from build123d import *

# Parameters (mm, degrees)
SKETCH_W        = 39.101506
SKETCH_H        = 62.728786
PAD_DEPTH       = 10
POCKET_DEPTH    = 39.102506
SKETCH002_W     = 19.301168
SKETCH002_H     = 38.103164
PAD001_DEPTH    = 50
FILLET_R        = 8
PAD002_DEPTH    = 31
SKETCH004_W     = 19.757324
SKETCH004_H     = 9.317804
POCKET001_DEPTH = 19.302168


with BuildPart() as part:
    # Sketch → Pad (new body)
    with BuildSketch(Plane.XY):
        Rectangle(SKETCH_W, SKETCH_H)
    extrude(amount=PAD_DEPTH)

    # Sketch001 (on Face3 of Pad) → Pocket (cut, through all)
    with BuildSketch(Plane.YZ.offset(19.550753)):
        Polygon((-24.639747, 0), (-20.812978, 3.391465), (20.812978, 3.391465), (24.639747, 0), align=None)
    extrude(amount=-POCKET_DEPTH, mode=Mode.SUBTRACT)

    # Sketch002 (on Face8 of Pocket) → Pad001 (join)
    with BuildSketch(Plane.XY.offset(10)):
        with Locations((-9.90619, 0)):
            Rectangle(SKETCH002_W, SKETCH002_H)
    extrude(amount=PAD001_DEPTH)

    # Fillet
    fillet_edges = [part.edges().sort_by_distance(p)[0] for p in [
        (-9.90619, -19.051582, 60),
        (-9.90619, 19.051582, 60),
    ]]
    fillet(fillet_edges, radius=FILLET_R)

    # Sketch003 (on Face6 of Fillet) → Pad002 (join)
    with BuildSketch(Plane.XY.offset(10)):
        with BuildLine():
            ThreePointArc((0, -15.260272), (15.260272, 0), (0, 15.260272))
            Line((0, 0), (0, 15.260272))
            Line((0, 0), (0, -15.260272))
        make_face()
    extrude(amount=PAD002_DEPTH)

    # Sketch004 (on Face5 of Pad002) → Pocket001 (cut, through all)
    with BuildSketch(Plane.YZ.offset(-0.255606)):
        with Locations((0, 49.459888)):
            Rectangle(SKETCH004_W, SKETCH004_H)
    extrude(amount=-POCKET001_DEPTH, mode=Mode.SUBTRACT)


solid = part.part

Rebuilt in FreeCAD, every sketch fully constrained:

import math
import FreeCAD as App
import Part
import Sketcher
from FreeCAD import Vector
Q = App.Units.Quantity


def edges_at(feature, points):
    """Names of the edges that pass closest to the given points."""
    edges = feature.Shape.Edges
    near = lambda p: min(range(len(edges)), key=lambda i: edges[i].distToShape(Part.Vertex(*p))[0])
    return sorted({f"Edge{near(p) + 1}" for p in points})

doc = App.newDocument("Part")
body = doc.addObject("PartDesign::Body", "Body")

sketch1 = body.newObject("Sketcher::SketchObject", "Sketch")
sketch1.AttachmentSupport = (doc.getObject("XY_Plane"), [""])
sketch1.MapMode = "FlatFace"
sketch1.addGeometry(Part.LineSegment(Vector(-20, 31, 0), Vector(-20, -31, 0)), False)
sketch1.addGeometry(Part.LineSegment(Vector(-20, -31, 0), Vector(20, -31, 0)), False)
sketch1.addGeometry(Part.LineSegment(Vector(20, -31, 0), Vector(20, 31, 0)), False)
sketch1.addGeometry(Part.LineSegment(Vector(20, 31, 0), Vector(-20, 31, 0)), False)
sketch1.addConstraint(Sketcher.Constraint("Coincident", 0, 2, 1, 1))
sketch1.addConstraint(Sketcher.Constraint("Coincident", 1, 2, 2, 1))
sketch1.addConstraint(Sketcher.Constraint("Coincident", 2, 2, 3, 1))
sketch1.addConstraint(Sketcher.Constraint("Coincident", 3, 2, 0, 1))
sketch1.addConstraint(Sketcher.Constraint("Vertical", 0))
sketch1.addConstraint(Sketcher.Constraint("Horizontal", 1))
sketch1.addConstraint(Sketcher.Constraint("Vertical", 2))
sketch1.addConstraint(Sketcher.Constraint("Horizontal", 3))
sketch1.addConstraint(Sketcher.Constraint("Symmetric", 0, 2, 2, 2, -1, 1))
sketch1.addConstraint(Sketcher.Constraint("DistanceX", 1, 1, 1, 2, Q("39.101506 mm")))
sketch1.addConstraint(Sketcher.Constraint("DistanceY", 0, 2, 0, 1, Q("62.728786 mm")))
pad1 = body.newObject("PartDesign::Pad", "Pad")
pad1.Profile = sketch1
pad1.Length = 10

sketch2 = body.newObject("Sketcher::SketchObject", "Sketch001")
sketch2.AttachmentSupport = (doc.getObject("YZ_Plane"), [""])
sketch2.MapMode = "FlatFace"
sketch2.AttachmentOffset = App.Placement(Vector(0, 0, 19.550753), App.Rotation())
sketch2.addGeometry(Part.LineSegment(Vector(-21, 3, 0), Vector(-25, 0, 0)), False)
sketch2.addGeometry(Part.LineSegment(Vector(-25, 0, 0), Vector(25, 0, 0)), False)
sketch2.addGeometry(Part.LineSegment(Vector(25, 0, 0), Vector(21, 3, 0)), False)
sketch2.addGeometry(Part.LineSegment(Vector(21, 3, 0), Vector(-21, 3, 0)), False)
sketch2.addConstraint(Sketcher.Constraint("Coincident", 0, 2, 1, 1))
sketch2.addConstraint(Sketcher.Constraint("Coincident", 1, 2, 2, 1))
sketch2.addConstraint(Sketcher.Constraint("Coincident", 2, 2, 3, 1))
sketch2.addConstraint(Sketcher.Constraint("Coincident", 3, 2, 0, 1))
sketch2.addConstraint(Sketcher.Constraint("Horizontal", 1))
sketch2.addConstraint(Sketcher.Constraint("Horizontal", 3))
sketch2.addConstraint(Sketcher.Constraint("Symmetric", 0, 2, 1, 2, -1, 1))
sketch2.addConstraint(Sketcher.Constraint("Equal", 0, 2))
sketch2.addConstraint(Sketcher.Constraint("DistanceX", 1, 1, 1, 2, Q("49.279494 mm")))
sketch2.addConstraint(Sketcher.Constraint("DistanceX", 3, 2, 3, 1, Q("41.625956 mm")))
sketch2.addConstraint(Sketcher.Constraint("Distance", 0, Q("5.113335 mm")))
pocket1 = body.newObject("PartDesign::Pocket", "Pocket")
pocket1.Profile = sketch2
pocket1.Type = "ThroughAll"

sketch3 = body.newObject("Sketcher::SketchObject", "Sketch002")
sketch3.AttachmentSupport = (doc.getObject("XY_Plane"), [""])
sketch3.MapMode = "FlatFace"
sketch3.AttachmentOffset = App.Placement(Vector(0, 0, 10), App.Rotation())
sketch3.addGeometry(Part.LineSegment(Vector(-20, 19, 0), Vector(-20, -19, 0)), False)
sketch3.addGeometry(Part.LineSegment(Vector(-20, -19, 0), Vector(0, -19, 0)), False)
sketch3.addGeometry(Part.LineSegment(Vector(0, -19, 0), Vector(0, 19, 0)), False)
sketch3.addGeometry(Part.LineSegment(Vector(0, 19, 0), Vector(-20, 19, 0)), False)
sketch3.addConstraint(Sketcher.Constraint("Coincident", 0, 2, 1, 1))
sketch3.addConstraint(Sketcher.Constraint("Coincident", 1, 2, 2, 1))
sketch3.addConstraint(Sketcher.Constraint("Coincident", 2, 2, 3, 1))
sketch3.addConstraint(Sketcher.Constraint("Coincident", 3, 2, 0, 1))
sketch3.addConstraint(Sketcher.Constraint("Vertical", 0))
sketch3.addConstraint(Sketcher.Constraint("Horizontal", 1))
sketch3.addConstraint(Sketcher.Constraint("Vertical", 2))
sketch3.addConstraint(Sketcher.Constraint("Horizontal", 3))
sketch3.addConstraint(Sketcher.Constraint("DistanceX", 1, 1, 1, 2, Q("19.301168 mm")))
sketch3.addConstraint(Sketcher.Constraint("DistanceY", 0, 2, 0, 1, Q("38.103164 mm")))
sketch3.addConstraint(Sketcher.Constraint("DistanceY", 0, 2, -1, 1, Q("19.051582 mm")))
sketch3.addConstraint(Sketcher.Constraint("DistanceX", 0, 2, -1, 1, Q("19.556774 mm")))
pad2 = body.newObject("PartDesign::Pad", "Pad001")
pad2.Profile = sketch3
pad2.Length = 50
doc.recompute()

fillet = body.newObject("PartDesign::Fillet", "Fillet")
fillet.Base = (pad2, edges_at(pad2, [(-9.906, -19.052, 60), (-9.906, 19.052, 60)]))
fillet.Radius = 8

sketch4 = body.newObject("Sketcher::SketchObject", "Sketch003")
sketch4.AttachmentSupport = (doc.getObject("XY_Plane"), [""])
sketch4.MapMode = "FlatFace"
sketch4.AttachmentOffset = App.Placement(Vector(0, 0, 10), App.Rotation())
sketch4.addGeometry(Part.ArcOfCircle(Part.Circle(Vector(0, 0, 0), Vector(0, 0, 1), 15), math.radians(-90), math.radians(90)), False)
sketch4.addGeometry(Part.LineSegment(Vector(0, 15, 0), Vector(0, -15, 0)), False)
sketch4.addConstraint(Sketcher.Constraint("Coincident", 0, 1, 1, 2))
sketch4.addConstraint(Sketcher.Constraint("Coincident", 1, 1, 0, 2))
sketch4.addConstraint(Sketcher.Constraint("Vertical", 1))
sketch4.addConstraint(Sketcher.Constraint("Coincident", 0, 3, -1, 1))
sketch4.addConstraint(Sketcher.Constraint("PointOnObject", 0, 1, -2))
sketch4.addConstraint(Sketcher.Constraint("Radius", 0, Q("15.260272 mm")))
pad3 = body.newObject("PartDesign::Pad", "Pad002")
pad3.Profile = sketch4
pad3.Length = 31

sketch5 = body.newObject("Sketcher::SketchObject", "Sketch004")
sketch5.AttachmentSupport = (doc.getObject("YZ_Plane"), [""])
sketch5.MapMode = "FlatFace"
sketch5.AttachmentOffset = App.Placement(Vector(0, 0, -0.255606), App.Rotation())
sketch5.addGeometry(Part.LineSegment(Vector(-10, 54, 0), Vector(-10, 45, 0)), False)
sketch5.addGeometry(Part.LineSegment(Vector(-10, 45, 0), Vector(10, 45, 0)), False)
sketch5.addGeometry(Part.LineSegment(Vector(10, 45, 0), Vector(10, 54, 0)), False)
sketch5.addGeometry(Part.LineSegment(Vector(10, 54, 0), Vector(-10, 54, 0)), False)
sketch5.addConstraint(Sketcher.Constraint("Coincident", 0, 2, 1, 1))
sketch5.addConstraint(Sketcher.Constraint("Coincident", 1, 2, 2, 1))
sketch5.addConstraint(Sketcher.Constraint("Coincident", 2, 2, 3, 1))
sketch5.addConstraint(Sketcher.Constraint("Coincident", 3, 2, 0, 1))
sketch5.addConstraint(Sketcher.Constraint("Vertical", 0))
sketch5.addConstraint(Sketcher.Constraint("Horizontal", 1))
sketch5.addConstraint(Sketcher.Constraint("Vertical", 2))
sketch5.addConstraint(Sketcher.Constraint("Horizontal", 3))
sketch5.addConstraint(Sketcher.Constraint("DistanceX", 1, 1, 1, 2, Q("19.757324 mm")))
sketch5.addConstraint(Sketcher.Constraint("DistanceY", 0, 2, 0, 1, Q("9.317804 mm")))
sketch5.addConstraint(Sketcher.Constraint("DistanceY", -1, 1, 2, 2, Q("54.11879 mm")))
sketch5.addConstraint(Sketcher.Constraint("DistanceX", 0, 2, -1, 1, Q("9.878662 mm")))
pocket2 = body.newObject("PartDesign::Pocket", "Pocket001")
pocket2.Profile = sketch5
pocket2.Type = "ThroughAll"

doc.recompute()
